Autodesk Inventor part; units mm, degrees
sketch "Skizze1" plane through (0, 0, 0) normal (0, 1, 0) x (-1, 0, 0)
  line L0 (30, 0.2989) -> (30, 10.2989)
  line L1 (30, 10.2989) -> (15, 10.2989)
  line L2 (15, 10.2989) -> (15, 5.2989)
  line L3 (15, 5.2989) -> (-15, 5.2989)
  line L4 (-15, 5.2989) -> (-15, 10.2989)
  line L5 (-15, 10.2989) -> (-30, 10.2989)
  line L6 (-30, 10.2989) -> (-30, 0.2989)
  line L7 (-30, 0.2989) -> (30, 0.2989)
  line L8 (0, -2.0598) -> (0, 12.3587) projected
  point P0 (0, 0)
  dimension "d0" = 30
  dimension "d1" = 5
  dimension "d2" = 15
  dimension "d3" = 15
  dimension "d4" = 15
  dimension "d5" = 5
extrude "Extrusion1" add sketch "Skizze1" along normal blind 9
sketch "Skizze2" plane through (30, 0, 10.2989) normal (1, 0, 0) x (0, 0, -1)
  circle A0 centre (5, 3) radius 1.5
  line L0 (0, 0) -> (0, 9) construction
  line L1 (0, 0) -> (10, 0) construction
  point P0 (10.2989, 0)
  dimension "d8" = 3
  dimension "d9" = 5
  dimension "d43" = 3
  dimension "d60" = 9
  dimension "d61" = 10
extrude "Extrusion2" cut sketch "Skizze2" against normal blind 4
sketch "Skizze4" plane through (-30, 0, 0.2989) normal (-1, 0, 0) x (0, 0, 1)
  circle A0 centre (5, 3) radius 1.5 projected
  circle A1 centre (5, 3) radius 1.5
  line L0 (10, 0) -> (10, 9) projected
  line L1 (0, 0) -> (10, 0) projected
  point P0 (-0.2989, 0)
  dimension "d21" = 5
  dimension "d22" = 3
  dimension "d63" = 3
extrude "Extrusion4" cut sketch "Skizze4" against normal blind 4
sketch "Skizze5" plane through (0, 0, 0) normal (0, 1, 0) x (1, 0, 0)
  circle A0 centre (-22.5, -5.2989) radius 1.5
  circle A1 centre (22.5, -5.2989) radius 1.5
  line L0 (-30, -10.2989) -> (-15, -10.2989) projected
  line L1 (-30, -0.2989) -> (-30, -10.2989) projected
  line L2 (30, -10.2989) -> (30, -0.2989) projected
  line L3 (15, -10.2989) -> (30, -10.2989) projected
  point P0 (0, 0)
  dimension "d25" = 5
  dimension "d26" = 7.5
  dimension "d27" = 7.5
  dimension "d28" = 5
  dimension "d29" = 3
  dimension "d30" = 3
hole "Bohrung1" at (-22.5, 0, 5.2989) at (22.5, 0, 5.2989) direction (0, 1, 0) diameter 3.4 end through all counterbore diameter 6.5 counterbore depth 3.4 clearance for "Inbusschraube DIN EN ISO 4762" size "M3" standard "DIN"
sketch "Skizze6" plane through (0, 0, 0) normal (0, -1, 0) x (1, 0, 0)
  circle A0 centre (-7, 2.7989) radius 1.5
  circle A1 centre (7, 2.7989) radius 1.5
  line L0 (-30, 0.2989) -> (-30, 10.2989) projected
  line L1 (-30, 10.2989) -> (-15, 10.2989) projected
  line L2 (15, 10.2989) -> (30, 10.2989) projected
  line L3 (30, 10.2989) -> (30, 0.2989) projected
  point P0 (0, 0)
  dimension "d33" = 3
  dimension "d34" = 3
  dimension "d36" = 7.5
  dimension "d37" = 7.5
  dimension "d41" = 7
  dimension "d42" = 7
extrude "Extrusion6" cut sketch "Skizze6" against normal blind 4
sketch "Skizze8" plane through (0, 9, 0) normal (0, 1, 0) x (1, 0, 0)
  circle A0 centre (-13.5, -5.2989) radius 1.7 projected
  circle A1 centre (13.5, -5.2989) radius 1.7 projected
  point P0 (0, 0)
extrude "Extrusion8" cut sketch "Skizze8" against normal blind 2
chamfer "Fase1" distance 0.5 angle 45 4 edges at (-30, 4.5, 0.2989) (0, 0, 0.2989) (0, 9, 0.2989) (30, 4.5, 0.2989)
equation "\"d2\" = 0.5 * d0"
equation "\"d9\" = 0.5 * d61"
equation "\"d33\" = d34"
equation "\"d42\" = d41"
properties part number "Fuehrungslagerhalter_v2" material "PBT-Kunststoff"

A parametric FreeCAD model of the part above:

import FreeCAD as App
import Part
import Sketcher


def edges_at(feature, points):
    """Names of the edges that pass closest to the given points."""
    edges = feature.Shape.Edges
    near = lambda p: min(range(len(edges)), key=lambda i: edges[i].distToShape(Part.Vertex(*p))[0])
    return sorted({f"Edge{near(p) + 1}" for p in points})


def add_polygon(sketch, points):
    """Adds a closed chain of lines whose ends are joined by coincident constraints."""
    first, n = sketch.GeometryCount, len(points)
    for a, b in zip(points, points[1:] + points[:1]):
        sketch.addGeometry(Part.LineSegment(App.Vector(*a, 0), App.Vector(*b, 0)), False)
    for i in range(n):
        sketch.addConstraint(Sketcher.Constraint("Coincident", first + i, 2, first + (i + 1) % n, 1))

doc = App.newDocument("Part")
body = doc.addObject("PartDesign::Body", "Body")

# Sketch on XZ plane
sketch1 = body.newObject("Sketcher::SketchObject", "Sketch")
sketch1.AttachmentSupport = (doc.getObject("XZ_Plane"), [""])
sketch1.MapMode = "FlatFace"
add_polygon(sketch1, [(-30, 0), (-30, 10), (-15, 10), (-15, 5), (15, 5), (15, 10), (30, 10), (30, 0)])  # lines 0-7
sketch1.addConstraint([
    Sketcher.Constraint("Vertical", 0),
    Sketcher.Constraint("Horizontal", 1),
    Sketcher.Constraint("Vertical", 2),
    Sketcher.Constraint("Horizontal", 3),
    Sketcher.Constraint("Vertical", 4),
    Sketcher.Constraint("Horizontal", 5),
    Sketcher.Constraint("Vertical", 6),
    Sketcher.Constraint("Horizontal", 7),
    Sketcher.Constraint("Symmetric", 1, 2, 4, 2, -2),
    Sketcher.Constraint("Equal", 1, 5),
    Sketcher.Constraint("DistanceX", 1, 1, 1, 2, 15.0),
    Sketcher.Constraint("DistanceX", 3, 1, 3, 2, 30.0),
    Sketcher.Constraint("DistanceY", 2, 2, 2, 1, 5.0),
    Sketcher.Constraint("DistanceY", 6, 2, 3, 2, 5.0),
    Sketcher.Constraint("DistanceY", -1, 1, 0, 2, 10.299),
])
pad1 = body.newObject("PartDesign::Pad", "Pad")
pad1.Profile = sketch1
pad1.Length = 9
pad1.Reversed = True

# Sketch on YZ plane
sketch2 = body.newObject("Sketcher::SketchObject", "Sketch001")
sketch2.AttachmentSupport = (doc.getObject("YZ_Plane"), [""])
sketch2.MapMode = "FlatFace"
sketch2.AttachmentOffset = App.Placement(App.Vector(0, 0, 30), App.Rotation())
sketch2.addGeometry(Part.Circle(App.Vector(3, 5.3, 0), App.Vector(0, 0, 1), 1.5), False)
sketch2.addConstraint([
    Sketcher.Constraint("Diameter", 0, 3.0),
    Sketcher.Constraint("DistanceX", -1, 1, 0, 3, 3.0),
    Sketcher.Constraint("DistanceY", -1, 1, 0, 3, 5.299),
])
pocket1 = body.newObject("PartDesign::Pocket", "Pocket")
pocket1.Profile = sketch2
pocket1.Length = 4

# Sketch on YZ plane
sketch3 = body.newObject("Sketcher::SketchObject", "Sketch002")
sketch3.AttachmentSupport = (doc.getObject("YZ_Plane"), [""])
sketch3.MapMode = "FlatFace"
sketch3.AttachmentOffset = App.Placement(App.Vector(0, 0, -30), App.Rotation())
sketch3.addGeometry(Part.Circle(App.Vector(3, 5.3, 0), App.Vector(0, 0, 1), 1.5), False)
sketch3.addConstraint([
    Sketcher.Constraint("Diameter", 0, 3.0),
    Sketcher.Constraint("DistanceX", -1, 1, 0, 3, 3.0),
    Sketcher.Constraint("DistanceY", -1, 1, 0, 3, 5.299),
])
pocket2 = body.newObject("PartDesign::Pocket", "Pocket001")
pocket2.Profile = sketch3
pocket2.Length = 4
pocket2.Reversed = True

# Sketch on XZ plane
sketch4 = body.newObject("Sketcher::SketchObject", "Sketch003")
sketch4.AttachmentSupport = (doc.getObject("XZ_Plane"), [""])
sketch4.MapMode = "FlatFace"
sketch4.addGeometry([
    Part.Circle(App.Vector(-22.5, 5.3, 0), App.Vector(0, 0, 1), 1.7),
    Part.Circle(App.Vector(22.5, 5.3, 0), App.Vector(0, 0, 1), 1.7),
], False)
sketch4.addConstraint([
    Sketcher.Constraint("Equal", 0, 1),
    Sketcher.Constraint("Symmetric", 0, 3, 1, 3, -2),
    Sketcher.Constraint("Diameter", 0, 3.4),
    Sketcher.Constraint("DistanceX", 0, 3, 1, 3, 45.0),
    Sketcher.Constraint("DistanceY", -1, 1, 0, 3, 5.299),
])
doc.recompute()
hole = body.newObject("PartDesign::Hole", "Hole")
hole.Profile = sketch4
hole.ThreadType = "None"
hole.Diameter = 3.4
hole.DepthType = "ThroughAll"
hole.HoleCutType = "Counterbore"
hole.HoleCutDiameter = 6.5
hole.HoleCutDepth = 3.4

# Sketch on XZ plane
sketch5 = body.newObject("Sketcher::SketchObject", "Sketch004")
sketch5.AttachmentSupport = (doc.getObject("XZ_Plane"), [""])
sketch5.MapMode = "FlatFace"
sketch5.addGeometry([
    Part.Circle(App.Vector(-7, 2.8, 0), App.Vector(0, 0, 1), 1.5),
    Part.Circle(App.Vector(7, 2.8, 0), App.Vector(0, 0, 1), 1.5),
], False)
sketch5.addConstraint([
    Sketcher.Constraint("Equal", 0, 1),
    Sketcher.Constraint("Symmetric", 0, 3, 1, 3, -2),
    Sketcher.Constraint("Diameter", 0, 3.0),
    Sketcher.Constraint("DistanceX", 0, 3, -1, 1, 7.0),
    Sketcher.Constraint("DistanceY", -1, 1, 0, 3, 2.799),
])
pocket3 = body.newObject("PartDesign::Pocket", "Pocket002")
pocket3.Profile = sketch5
pocket3.Length = 4

# Sketch on XZ plane
sketch6 = body.newObject("Sketcher::SketchObject", "Sketch005")
sketch6.AttachmentSupport = (doc.getObject("XZ_Plane"), [""])
sketch6.MapMode = "FlatFace"
sketch6.AttachmentOffset = App.Placement(App.Vector(0, 0, -9), App.Rotation())
sketch6.addGeometry([
    Part.Circle(App.Vector(-13.5, 5.3, 0), App.Vector(0, 0, 1), 1.7),
    Part.Circle(App.Vector(13.5, 5.3, 0), App.Vector(0, 0, 1), 1.7),
], False)
sketch6.addConstraint([
    Sketcher.Constraint("Equal", 0, 1),
    Sketcher.Constraint("Symmetric", 0, 3, 1, 3, -2),
    Sketcher.Constraint("Diameter", 0, 3.4),
    Sketcher.Constraint("DistanceX", 0, 3, 1, 3, 27.0),
    Sketcher.Constraint("DistanceY", -1, 1, 0, 3, 5.299),
])
pocket4 = body.newObject("PartDesign::Pocket", "Pocket003")
pocket4.Profile = sketch6
pocket4.Length = 2
pocket4.Reversed = True
doc.recompute()

chamfer = body.newObject("PartDesign::Chamfer", "Chamfer")
chamfer.Base = (pocket4, edges_at(pocket4, [
    (-30, 4.5, 0.299),
    (0, 0, 0.299),
    (0, 9, 0.299),
    (30, 4.5, 0.299),
]))
chamfer.Size = 0.5

doc.recompute()
